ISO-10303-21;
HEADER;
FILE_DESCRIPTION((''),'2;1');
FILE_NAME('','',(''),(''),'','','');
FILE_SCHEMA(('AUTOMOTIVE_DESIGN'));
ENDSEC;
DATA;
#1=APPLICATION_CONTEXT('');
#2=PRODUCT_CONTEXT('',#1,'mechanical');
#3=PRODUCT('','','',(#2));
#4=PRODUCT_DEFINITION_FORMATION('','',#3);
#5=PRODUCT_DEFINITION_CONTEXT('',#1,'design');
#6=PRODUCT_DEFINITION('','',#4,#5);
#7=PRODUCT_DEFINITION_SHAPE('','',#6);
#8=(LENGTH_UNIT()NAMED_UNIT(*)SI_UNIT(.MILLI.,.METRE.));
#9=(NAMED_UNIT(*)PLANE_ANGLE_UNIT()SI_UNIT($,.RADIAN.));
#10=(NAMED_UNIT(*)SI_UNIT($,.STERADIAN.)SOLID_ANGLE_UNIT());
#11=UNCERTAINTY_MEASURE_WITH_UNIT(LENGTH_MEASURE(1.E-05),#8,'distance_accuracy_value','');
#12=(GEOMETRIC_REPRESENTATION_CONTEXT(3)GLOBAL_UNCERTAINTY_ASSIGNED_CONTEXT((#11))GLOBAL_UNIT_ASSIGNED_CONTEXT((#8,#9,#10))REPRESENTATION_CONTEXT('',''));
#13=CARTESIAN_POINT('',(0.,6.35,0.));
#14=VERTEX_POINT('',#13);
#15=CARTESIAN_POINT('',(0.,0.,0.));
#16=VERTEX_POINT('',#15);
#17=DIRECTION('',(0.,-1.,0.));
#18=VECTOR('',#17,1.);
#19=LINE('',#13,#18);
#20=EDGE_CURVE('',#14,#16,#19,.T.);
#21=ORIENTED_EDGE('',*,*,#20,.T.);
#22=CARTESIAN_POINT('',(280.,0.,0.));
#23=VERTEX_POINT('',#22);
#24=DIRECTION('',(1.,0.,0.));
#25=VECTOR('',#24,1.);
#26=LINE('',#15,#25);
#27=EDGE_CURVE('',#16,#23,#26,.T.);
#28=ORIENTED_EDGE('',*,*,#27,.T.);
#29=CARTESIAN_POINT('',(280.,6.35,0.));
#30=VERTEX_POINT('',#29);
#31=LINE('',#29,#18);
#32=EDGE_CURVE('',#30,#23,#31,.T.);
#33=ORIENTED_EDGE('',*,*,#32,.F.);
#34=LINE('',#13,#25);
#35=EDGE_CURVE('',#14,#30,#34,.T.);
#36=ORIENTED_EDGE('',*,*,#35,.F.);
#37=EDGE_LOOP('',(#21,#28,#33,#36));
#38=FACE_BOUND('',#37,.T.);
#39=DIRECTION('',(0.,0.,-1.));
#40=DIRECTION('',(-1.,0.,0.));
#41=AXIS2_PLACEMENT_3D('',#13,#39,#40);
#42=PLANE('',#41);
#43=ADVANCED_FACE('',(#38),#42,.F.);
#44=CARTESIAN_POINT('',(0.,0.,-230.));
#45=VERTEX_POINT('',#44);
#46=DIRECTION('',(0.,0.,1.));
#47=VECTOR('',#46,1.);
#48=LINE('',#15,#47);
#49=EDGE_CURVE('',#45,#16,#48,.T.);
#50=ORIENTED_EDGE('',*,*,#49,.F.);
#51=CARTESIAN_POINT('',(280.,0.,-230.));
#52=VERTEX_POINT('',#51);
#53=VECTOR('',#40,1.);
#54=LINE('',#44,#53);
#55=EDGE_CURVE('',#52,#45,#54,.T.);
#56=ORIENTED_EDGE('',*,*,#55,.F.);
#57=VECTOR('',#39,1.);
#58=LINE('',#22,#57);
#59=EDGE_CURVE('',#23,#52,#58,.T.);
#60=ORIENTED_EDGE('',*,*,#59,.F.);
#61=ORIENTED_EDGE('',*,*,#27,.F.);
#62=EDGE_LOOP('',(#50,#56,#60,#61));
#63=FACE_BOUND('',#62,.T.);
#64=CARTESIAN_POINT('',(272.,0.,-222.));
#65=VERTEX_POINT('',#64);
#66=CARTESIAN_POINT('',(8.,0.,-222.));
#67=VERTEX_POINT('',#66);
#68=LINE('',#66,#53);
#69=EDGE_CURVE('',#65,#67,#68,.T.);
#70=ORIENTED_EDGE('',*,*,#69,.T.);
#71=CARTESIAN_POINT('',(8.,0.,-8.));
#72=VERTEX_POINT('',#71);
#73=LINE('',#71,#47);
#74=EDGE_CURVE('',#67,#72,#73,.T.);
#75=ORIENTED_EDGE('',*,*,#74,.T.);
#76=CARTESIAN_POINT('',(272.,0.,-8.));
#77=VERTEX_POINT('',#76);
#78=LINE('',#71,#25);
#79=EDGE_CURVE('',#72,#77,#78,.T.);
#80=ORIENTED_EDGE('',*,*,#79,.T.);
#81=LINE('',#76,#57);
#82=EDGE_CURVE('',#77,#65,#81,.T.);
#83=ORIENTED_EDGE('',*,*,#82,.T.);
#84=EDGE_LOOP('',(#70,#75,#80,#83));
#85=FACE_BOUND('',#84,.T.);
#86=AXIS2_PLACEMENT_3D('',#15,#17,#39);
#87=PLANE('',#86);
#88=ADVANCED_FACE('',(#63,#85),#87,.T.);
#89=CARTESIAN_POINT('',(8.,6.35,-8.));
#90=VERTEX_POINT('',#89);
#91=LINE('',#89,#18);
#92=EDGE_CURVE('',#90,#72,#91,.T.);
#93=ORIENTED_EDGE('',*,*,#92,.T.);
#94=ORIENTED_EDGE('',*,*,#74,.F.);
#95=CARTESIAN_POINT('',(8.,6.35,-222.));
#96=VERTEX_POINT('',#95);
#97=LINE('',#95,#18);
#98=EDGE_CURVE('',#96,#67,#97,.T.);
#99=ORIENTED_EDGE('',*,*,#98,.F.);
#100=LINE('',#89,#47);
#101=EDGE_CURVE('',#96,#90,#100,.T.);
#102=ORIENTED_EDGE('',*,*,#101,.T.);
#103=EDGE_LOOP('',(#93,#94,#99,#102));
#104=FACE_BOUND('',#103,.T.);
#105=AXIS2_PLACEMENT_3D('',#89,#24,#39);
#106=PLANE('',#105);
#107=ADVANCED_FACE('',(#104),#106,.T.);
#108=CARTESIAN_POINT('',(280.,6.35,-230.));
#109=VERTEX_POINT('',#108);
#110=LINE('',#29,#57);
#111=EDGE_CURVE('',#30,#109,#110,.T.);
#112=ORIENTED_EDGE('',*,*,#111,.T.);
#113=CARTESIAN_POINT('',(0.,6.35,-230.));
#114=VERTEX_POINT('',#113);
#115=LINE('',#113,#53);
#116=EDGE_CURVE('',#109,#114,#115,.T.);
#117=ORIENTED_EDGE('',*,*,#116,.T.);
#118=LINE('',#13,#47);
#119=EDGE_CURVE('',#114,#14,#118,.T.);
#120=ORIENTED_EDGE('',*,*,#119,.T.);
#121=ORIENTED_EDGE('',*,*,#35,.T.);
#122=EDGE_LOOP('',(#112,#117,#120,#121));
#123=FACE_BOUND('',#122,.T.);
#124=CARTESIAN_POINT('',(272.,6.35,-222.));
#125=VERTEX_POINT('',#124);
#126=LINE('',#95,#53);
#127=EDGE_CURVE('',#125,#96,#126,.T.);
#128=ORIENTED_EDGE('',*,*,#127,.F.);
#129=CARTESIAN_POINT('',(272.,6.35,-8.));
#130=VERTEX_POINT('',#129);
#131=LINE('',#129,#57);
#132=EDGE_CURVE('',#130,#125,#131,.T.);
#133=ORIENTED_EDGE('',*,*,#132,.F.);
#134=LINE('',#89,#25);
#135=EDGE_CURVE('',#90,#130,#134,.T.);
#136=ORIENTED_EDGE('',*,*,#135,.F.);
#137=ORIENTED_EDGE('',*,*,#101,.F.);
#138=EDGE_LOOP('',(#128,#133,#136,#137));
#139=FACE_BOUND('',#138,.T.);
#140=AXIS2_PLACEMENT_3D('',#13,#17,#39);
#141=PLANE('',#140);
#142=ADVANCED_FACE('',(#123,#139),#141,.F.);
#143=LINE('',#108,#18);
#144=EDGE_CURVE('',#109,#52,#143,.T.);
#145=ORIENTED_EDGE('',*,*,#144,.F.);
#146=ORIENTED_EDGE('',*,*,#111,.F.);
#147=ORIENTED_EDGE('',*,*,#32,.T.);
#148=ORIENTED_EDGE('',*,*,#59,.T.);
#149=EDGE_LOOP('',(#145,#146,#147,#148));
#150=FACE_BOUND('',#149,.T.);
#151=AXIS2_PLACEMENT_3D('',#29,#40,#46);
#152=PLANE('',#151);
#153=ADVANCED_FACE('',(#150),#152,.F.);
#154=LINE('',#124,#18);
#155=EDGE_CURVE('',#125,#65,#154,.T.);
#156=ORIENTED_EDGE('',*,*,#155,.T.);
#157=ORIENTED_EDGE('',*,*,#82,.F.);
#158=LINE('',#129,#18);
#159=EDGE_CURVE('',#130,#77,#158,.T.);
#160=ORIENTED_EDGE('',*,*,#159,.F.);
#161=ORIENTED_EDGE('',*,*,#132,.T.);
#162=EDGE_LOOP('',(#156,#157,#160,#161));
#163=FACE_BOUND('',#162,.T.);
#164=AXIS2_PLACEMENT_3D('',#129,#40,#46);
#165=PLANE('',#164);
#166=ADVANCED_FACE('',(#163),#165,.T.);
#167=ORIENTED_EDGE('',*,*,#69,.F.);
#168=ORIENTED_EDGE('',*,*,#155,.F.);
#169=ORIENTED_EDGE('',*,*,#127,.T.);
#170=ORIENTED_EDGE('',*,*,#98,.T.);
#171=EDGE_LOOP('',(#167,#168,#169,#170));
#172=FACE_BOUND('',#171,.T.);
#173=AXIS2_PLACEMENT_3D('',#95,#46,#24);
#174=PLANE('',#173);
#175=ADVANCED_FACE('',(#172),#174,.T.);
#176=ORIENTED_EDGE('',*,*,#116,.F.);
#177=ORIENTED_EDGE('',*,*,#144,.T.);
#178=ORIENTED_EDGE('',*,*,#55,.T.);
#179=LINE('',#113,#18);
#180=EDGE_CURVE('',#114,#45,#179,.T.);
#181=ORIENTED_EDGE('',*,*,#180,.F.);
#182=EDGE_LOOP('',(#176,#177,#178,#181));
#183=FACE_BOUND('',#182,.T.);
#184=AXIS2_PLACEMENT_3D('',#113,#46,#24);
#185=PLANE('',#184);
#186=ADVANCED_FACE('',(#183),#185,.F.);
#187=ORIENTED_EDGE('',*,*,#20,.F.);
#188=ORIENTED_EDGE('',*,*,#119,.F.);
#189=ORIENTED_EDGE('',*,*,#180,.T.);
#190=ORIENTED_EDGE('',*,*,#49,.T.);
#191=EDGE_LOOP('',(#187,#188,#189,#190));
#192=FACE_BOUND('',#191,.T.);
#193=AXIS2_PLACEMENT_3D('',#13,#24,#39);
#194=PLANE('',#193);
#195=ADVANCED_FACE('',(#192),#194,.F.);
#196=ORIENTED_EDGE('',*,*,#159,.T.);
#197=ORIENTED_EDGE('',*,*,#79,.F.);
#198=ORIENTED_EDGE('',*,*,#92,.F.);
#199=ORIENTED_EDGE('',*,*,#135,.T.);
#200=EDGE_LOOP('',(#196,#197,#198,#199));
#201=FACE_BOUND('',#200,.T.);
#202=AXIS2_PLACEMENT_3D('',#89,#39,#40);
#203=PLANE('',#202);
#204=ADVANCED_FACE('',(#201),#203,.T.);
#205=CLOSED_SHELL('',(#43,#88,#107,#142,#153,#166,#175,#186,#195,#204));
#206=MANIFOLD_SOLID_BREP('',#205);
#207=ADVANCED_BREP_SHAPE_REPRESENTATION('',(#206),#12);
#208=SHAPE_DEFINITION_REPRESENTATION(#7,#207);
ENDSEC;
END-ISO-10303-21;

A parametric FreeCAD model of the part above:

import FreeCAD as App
import Part
import Sketcher
from FreeCAD import Vector

doc = App.newDocument("Part")
body = doc.addObject("PartDesign::Body", "Body")

# Sketch on XZ plane
sketch1 = body.newObject("Sketcher::SketchObject", "Sketch")
sketch1.AttachmentSupport = (doc.getObject("XZ_Plane"), [""])
sketch1.MapMode = "FlatFace"
sketch1.addGeometry([
    Part.LineSegment(Vector(0, -230, 0), Vector(0, 0, 0)),  # 0
    Part.LineSegment(Vector(0, 0, 0), Vector(280, 0, 0)),  # 1
    Part.LineSegment(Vector(280, 0, 0), Vector(280, -230, 0)),  # 2
    Part.LineSegment(Vector(280, -230, 0), Vector(0, -230, 0)),  # 3
    Part.LineSegment(Vector(272, -8, 0), Vector(8, -8, 0)),  # 4
    Part.LineSegment(Vector(8, -8, 0), Vector(8, -222, 0)),  # 5
    Part.LineSegment(Vector(8, -222, 0), Vector(272, -222, 0)),  # 6
    Part.LineSegment(Vector(272, -222, 0), Vector(272, -8, 0)),  # 7
], False)
sketch1.addConstraint([
    Sketcher.Constraint("Coincident", 0, 2, 1, 1),
    Sketcher.Constraint("Coincident", 1, 2, 2, 1),
    Sketcher.Constraint("Coincident", 2, 2, 3, 1),
    Sketcher.Constraint("Coincident", 3, 2, 0, 1),
    Sketcher.Constraint("Coincident", 4, 2, 5, 1),
    Sketcher.Constraint("Coincident", 5, 2, 6, 1),
    Sketcher.Constraint("Coincident", 6, 2, 7, 1),
    Sketcher.Constraint("Coincident", 7, 2, 4, 1),
    Sketcher.Constraint("Vertical", 0),
    Sketcher.Constraint("Horizontal", 1),
    Sketcher.Constraint("Vertical", 2),
    Sketcher.Constraint("Horizontal", 3),
    Sketcher.Constraint("Horizontal", 4),
    Sketcher.Constraint("Vertical", 5),
    Sketcher.Constraint("Horizontal", 6),
    Sketcher.Constraint("Vertical", 7),
    Sketcher.Constraint("Coincident", 0, 2, -1, 1),
    Sketcher.Constraint("DistanceX", 1, 1, 1, 2, 280.0),
    Sketcher.Constraint("DistanceX", 4, 2, 4, 1, 264.0),
    Sketcher.Constraint("DistanceY", 0, 1, 0, 2, 230.0),
    Sketcher.Constraint("DistanceY", 5, 2, 5, 1, 214.0),
    Sketcher.Constraint("DistanceX", -1, 1, 4, 2, 8.0),
    Sketcher.Constraint("DistanceY", 4, 2, -1, 1, 8.0),
])
pad1 = body.newObject("PartDesign::Pad", "Pad")
pad1.Profile = sketch1
pad1.Length = 6.35
pad1.Reversed = True

doc.recompute()
